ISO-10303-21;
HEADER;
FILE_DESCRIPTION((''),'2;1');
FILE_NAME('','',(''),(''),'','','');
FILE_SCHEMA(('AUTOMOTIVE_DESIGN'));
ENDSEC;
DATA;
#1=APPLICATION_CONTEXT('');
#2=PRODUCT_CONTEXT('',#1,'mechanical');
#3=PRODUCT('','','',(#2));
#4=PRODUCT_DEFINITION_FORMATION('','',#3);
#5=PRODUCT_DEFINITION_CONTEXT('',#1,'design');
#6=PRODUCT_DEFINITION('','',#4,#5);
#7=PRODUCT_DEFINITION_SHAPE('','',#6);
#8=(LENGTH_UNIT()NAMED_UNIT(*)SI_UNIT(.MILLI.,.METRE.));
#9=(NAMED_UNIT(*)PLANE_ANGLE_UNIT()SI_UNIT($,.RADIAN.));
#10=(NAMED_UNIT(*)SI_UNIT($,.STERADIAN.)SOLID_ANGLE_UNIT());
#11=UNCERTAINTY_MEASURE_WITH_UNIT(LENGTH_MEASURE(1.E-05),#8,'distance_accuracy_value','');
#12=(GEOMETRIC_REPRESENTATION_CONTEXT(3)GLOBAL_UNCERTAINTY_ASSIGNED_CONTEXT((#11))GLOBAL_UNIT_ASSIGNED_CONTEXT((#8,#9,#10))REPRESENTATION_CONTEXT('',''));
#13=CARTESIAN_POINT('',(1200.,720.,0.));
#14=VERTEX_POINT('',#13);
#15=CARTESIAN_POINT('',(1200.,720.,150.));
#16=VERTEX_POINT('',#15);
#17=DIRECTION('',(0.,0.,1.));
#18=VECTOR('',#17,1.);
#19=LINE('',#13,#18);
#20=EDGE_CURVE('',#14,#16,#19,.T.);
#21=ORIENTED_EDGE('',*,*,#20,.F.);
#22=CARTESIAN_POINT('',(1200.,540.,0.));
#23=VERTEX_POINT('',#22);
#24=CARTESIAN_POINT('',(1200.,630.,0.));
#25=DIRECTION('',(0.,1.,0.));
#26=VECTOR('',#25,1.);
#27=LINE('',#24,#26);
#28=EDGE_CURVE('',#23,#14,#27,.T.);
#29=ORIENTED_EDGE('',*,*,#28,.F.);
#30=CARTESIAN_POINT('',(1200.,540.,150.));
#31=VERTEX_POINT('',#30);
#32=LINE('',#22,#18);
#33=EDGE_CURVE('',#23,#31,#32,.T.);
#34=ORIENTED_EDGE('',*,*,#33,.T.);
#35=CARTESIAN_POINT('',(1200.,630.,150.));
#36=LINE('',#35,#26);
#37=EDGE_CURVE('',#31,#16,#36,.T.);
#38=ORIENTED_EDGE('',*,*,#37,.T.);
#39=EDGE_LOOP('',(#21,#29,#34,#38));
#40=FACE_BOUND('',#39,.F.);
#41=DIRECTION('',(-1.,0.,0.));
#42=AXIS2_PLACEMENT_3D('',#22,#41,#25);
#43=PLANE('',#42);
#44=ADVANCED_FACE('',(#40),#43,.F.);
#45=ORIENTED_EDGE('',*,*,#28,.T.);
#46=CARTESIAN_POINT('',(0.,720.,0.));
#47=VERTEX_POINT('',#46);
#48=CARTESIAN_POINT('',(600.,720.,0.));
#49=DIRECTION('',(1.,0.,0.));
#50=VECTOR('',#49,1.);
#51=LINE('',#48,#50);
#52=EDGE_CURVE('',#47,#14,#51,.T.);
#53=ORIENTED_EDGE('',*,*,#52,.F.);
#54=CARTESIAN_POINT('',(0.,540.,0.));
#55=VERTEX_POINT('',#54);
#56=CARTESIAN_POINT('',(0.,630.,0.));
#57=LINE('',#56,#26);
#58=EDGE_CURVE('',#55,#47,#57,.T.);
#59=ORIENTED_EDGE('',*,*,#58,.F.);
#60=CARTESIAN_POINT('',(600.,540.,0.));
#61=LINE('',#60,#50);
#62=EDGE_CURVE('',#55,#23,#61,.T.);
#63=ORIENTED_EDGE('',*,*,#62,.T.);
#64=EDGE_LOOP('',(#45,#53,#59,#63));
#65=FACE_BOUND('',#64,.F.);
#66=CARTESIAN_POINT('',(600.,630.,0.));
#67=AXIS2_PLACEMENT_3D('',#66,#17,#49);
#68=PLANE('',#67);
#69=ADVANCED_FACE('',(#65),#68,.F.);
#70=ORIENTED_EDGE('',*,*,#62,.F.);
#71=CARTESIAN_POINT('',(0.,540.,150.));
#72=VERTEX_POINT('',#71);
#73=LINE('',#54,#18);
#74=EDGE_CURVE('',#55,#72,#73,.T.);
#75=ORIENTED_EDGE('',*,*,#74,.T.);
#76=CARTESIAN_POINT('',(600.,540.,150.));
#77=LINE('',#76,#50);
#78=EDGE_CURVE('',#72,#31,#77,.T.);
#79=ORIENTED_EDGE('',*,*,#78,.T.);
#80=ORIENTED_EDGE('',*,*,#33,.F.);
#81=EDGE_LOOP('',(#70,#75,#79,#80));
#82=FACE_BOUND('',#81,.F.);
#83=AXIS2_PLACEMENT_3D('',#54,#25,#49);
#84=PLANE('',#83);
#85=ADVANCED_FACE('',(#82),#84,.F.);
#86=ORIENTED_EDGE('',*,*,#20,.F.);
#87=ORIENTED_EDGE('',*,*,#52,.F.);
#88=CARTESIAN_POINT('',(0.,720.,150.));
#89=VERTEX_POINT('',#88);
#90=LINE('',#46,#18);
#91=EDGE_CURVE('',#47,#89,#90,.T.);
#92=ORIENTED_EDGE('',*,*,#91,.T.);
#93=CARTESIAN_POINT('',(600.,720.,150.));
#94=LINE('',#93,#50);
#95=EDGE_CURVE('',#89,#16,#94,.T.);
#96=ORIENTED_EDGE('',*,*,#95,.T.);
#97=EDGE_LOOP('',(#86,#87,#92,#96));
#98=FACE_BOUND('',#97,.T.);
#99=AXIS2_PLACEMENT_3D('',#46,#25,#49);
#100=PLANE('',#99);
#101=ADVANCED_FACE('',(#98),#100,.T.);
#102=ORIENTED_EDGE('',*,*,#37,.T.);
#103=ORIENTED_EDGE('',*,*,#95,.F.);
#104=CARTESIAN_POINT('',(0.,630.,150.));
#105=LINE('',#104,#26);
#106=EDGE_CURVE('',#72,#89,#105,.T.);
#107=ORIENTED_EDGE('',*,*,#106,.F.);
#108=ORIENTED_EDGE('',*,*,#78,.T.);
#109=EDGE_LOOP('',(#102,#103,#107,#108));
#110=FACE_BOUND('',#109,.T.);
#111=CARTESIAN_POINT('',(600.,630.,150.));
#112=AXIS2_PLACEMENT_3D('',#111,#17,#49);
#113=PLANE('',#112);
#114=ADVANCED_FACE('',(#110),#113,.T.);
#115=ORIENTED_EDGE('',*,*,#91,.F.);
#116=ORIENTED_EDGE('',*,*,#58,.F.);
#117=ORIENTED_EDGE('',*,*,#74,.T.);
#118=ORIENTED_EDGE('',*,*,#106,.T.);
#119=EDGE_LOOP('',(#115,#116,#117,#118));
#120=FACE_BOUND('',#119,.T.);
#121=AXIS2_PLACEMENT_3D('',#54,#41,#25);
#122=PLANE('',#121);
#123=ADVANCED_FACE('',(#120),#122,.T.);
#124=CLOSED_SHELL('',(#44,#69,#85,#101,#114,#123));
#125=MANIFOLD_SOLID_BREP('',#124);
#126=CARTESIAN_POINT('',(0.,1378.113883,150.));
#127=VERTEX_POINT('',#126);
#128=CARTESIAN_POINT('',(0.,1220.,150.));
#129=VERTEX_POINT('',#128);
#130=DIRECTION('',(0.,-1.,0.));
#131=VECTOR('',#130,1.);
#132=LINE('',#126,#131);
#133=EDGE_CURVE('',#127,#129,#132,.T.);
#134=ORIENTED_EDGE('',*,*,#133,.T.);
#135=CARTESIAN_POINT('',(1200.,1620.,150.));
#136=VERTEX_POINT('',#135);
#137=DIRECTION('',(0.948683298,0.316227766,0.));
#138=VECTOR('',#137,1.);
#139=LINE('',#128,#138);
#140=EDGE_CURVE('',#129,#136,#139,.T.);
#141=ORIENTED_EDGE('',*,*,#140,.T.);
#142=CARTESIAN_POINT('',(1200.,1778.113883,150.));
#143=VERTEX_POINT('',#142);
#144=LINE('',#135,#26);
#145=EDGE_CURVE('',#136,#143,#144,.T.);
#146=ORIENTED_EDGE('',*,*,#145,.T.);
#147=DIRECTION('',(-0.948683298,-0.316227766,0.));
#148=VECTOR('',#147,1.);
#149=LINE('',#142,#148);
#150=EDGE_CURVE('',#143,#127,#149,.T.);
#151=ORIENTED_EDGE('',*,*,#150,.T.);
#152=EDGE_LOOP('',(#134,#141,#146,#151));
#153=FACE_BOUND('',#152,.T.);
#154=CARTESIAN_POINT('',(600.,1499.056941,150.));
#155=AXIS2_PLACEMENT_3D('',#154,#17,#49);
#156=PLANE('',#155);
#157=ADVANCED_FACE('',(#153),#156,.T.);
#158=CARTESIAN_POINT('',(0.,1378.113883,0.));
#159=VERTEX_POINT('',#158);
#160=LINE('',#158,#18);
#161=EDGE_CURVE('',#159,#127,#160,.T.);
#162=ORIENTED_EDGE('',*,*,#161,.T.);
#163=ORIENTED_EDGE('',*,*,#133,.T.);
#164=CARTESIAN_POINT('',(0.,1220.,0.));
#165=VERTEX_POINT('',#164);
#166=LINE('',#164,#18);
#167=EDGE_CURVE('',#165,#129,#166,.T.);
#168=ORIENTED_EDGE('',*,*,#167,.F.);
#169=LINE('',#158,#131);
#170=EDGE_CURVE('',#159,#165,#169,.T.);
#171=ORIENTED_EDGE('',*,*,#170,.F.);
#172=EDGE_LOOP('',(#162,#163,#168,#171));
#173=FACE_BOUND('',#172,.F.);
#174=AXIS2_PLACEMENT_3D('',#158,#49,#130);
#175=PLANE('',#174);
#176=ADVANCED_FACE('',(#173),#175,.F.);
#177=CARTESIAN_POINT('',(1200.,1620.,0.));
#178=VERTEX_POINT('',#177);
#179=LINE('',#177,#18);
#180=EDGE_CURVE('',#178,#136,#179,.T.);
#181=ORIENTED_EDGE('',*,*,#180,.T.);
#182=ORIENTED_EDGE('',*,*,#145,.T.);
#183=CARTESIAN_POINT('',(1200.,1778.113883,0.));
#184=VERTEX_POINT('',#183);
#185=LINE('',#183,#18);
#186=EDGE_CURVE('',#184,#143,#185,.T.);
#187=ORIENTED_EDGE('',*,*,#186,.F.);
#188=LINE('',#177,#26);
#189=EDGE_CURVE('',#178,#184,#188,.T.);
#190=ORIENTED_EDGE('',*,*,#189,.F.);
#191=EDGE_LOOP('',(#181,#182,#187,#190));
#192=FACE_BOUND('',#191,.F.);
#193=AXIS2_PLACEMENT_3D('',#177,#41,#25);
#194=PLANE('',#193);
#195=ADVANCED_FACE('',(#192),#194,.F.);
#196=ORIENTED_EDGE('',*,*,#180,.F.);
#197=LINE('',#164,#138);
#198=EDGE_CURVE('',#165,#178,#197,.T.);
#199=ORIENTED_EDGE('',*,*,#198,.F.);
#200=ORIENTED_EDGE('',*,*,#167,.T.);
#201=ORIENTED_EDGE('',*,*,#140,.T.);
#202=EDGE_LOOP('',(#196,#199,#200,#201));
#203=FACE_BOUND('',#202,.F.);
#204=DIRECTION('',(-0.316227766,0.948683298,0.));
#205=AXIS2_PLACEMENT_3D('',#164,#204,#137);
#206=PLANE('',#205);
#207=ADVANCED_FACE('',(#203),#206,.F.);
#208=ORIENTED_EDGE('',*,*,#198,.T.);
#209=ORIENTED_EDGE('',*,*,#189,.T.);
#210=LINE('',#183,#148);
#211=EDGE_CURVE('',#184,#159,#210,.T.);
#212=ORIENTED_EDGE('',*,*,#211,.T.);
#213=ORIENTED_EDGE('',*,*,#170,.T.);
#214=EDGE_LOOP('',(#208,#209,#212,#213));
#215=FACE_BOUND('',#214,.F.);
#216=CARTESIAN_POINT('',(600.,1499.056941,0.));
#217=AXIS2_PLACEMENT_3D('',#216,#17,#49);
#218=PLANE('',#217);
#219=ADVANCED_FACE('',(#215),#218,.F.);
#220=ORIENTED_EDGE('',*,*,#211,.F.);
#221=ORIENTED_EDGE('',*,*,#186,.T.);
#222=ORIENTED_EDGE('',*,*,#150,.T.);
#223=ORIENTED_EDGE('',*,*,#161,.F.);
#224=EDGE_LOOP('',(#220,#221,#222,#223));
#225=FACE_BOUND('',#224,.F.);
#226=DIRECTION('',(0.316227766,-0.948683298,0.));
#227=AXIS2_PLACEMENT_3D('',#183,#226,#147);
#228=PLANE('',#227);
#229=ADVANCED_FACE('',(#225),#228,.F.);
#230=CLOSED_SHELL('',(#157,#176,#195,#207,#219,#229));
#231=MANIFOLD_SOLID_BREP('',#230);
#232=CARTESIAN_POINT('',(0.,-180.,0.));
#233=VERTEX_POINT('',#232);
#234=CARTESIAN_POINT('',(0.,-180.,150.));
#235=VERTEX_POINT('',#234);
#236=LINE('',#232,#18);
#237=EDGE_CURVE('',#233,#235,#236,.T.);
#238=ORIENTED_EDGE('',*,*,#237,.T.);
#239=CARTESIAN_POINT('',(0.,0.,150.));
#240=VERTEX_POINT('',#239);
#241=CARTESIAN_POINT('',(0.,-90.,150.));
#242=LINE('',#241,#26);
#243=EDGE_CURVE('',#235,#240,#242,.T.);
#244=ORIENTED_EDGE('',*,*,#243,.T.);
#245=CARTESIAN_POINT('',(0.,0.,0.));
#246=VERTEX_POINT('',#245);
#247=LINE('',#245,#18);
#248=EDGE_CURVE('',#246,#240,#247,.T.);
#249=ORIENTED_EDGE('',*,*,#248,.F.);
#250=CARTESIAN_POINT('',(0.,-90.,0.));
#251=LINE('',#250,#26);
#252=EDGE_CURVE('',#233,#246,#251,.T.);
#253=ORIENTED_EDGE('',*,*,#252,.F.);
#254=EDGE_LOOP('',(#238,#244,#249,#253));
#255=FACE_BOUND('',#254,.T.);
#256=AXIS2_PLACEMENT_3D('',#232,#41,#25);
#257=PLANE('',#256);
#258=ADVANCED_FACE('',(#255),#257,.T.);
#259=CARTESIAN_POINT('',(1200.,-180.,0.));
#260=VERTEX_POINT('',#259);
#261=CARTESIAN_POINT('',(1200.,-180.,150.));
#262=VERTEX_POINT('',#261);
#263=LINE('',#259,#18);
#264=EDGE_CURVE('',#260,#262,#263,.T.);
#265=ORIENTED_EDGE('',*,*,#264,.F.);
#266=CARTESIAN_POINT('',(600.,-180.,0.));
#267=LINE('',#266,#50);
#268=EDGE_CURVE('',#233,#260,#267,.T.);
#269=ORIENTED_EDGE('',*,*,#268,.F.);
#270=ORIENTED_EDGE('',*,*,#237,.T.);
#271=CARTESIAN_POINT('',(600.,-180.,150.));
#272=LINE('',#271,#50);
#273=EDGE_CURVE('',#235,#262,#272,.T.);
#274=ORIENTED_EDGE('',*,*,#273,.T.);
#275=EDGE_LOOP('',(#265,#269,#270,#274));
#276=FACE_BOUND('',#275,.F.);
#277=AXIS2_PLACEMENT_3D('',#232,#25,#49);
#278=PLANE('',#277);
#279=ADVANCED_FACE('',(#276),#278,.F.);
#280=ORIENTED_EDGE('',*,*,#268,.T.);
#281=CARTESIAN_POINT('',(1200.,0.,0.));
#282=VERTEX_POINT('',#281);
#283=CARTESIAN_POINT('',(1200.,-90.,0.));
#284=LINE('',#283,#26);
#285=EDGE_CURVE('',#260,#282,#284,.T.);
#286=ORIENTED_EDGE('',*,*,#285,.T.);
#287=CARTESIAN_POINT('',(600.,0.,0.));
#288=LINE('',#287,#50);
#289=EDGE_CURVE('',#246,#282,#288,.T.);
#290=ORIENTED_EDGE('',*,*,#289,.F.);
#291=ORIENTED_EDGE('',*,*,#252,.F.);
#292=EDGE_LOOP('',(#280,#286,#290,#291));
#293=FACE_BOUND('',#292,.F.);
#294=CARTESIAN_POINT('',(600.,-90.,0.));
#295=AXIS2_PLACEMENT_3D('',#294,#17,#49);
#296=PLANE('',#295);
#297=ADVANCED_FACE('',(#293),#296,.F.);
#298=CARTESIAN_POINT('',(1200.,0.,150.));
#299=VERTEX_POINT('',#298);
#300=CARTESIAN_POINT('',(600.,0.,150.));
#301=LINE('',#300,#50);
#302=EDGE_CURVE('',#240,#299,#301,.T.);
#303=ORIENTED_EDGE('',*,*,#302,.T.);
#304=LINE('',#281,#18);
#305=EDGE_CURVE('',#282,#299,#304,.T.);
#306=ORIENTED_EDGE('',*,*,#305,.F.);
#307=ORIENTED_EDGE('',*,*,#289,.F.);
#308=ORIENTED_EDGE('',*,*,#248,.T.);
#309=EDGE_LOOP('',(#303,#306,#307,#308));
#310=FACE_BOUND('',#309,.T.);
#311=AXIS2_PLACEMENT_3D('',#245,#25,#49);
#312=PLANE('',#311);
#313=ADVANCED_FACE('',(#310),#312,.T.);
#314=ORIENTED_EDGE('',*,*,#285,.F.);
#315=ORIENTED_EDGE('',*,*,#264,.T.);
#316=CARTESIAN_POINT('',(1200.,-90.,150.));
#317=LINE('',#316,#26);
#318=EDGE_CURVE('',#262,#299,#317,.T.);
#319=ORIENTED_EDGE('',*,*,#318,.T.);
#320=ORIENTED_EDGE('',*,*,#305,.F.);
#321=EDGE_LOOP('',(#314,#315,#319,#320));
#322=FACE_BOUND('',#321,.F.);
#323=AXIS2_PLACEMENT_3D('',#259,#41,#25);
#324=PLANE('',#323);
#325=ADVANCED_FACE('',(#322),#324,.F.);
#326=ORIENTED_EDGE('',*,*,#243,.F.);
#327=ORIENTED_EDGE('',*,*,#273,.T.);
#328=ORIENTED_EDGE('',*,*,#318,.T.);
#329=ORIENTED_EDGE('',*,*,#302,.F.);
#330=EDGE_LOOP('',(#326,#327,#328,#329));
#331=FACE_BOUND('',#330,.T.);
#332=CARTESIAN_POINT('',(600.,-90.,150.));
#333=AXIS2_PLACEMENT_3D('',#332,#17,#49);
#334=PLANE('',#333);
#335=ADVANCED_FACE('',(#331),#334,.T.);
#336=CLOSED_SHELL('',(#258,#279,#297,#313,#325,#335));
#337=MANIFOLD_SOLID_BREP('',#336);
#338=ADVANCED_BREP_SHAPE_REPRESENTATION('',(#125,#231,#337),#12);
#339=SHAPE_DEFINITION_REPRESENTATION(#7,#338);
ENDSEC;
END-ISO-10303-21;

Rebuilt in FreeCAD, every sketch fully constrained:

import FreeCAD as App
import Part
import Sketcher

V = App.Vector

doc = App.newDocument("Part")
body = doc.addObject("PartDesign::Body", "Body")
body.AllowCompound = True

# Sketch on XY plane
sketch1 = doc.addObject("Sketcher::SketchObject", "Sketch")
body.addObject(sketch1)
sketch1.AttachmentSupport = (doc.XY_Plane, [""])
sketch1.MapMode = "FlatFace"
sketch1.addGeometry(Part.LineSegment(V(1200, 1778, 0), V(0, 1378, 0)), False)
sketch1.addGeometry(Part.LineSegment(V(0, 1378, 0), V(0, 1220, 0)), False)
sketch1.addGeometry(Part.LineSegment(V(0, 1220, 0), V(1200, 1620, 0)), False)
sketch1.addGeometry(Part.LineSegment(V(1200, 1620, 0), V(1200, 1778, 0)), False)
sketch1.addGeometry(Part.LineSegment(V(0, 720, 0), V(0, 540, 0)), False)
sketch1.addGeometry(Part.LineSegment(V(0, 540, 0), V(1200, 540, 0)), False)
sketch1.addGeometry(Part.LineSegment(V(1200, 540, 0), V(1200, 720, 0)), False)
sketch1.addGeometry(Part.LineSegment(V(1200, 720, 0), V(0, 720, 0)), False)
sketch1.addGeometry(Part.LineSegment(V(0, 0, 0), V(0, -180, 0)), False)
sketch1.addGeometry(Part.LineSegment(V(0, -180, 0), V(1200, -180, 0)), False)
sketch1.addGeometry(Part.LineSegment(V(1200, -180, 0), V(1200, 0, 0)), False)
sketch1.addGeometry(Part.LineSegment(V(1200, 0, 0), V(0, 0, 0)), False)
sketch1.addConstraint(Sketcher.Constraint("Coincident", 0, 2, 1, 1))
sketch1.addConstraint(Sketcher.Constraint("Coincident", 1, 2, 2, 1))
sketch1.addConstraint(Sketcher.Constraint("Coincident", 2, 2, 3, 1))
sketch1.addConstraint(Sketcher.Constraint("Coincident", 3, 2, 0, 1))
sketch1.addConstraint(Sketcher.Constraint("Coincident", 4, 2, 5, 1))
sketch1.addConstraint(Sketcher.Constraint("Coincident", 5, 2, 6, 1))
sketch1.addConstraint(Sketcher.Constraint("Coincident", 6, 2, 7, 1))
sketch1.addConstraint(Sketcher.Constraint("Coincident", 7, 2, 4, 1))
sketch1.addConstraint(Sketcher.Constraint("Coincident", 8, 2, 9, 1))
sketch1.addConstraint(Sketcher.Constraint("Coincident", 9, 2, 10, 1))
sketch1.addConstraint(Sketcher.Constraint("Coincident", 10, 2, 11, 1))
sketch1.addConstraint(Sketcher.Constraint("Coincident", 11, 2, 8, 1))
sketch1.addConstraint(Sketcher.Constraint("Vertical", 1))
sketch1.addConstraint(Sketcher.Constraint("Vertical", 3))
sketch1.addConstraint(Sketcher.Constraint("Vertical", 4))
sketch1.addConstraint(Sketcher.Constraint("Horizontal", 5))
sketch1.addConstraint(Sketcher.Constraint("Vertical", 6))
sketch1.addConstraint(Sketcher.Constraint("Horizontal", 7))
sketch1.addConstraint(Sketcher.Constraint("Vertical", 8))
sketch1.addConstraint(Sketcher.Constraint("Horizontal", 9))
sketch1.addConstraint(Sketcher.Constraint("Vertical", 10))
sketch1.addConstraint(Sketcher.Constraint("Horizontal", 11))
sketch1.addConstraint(Sketcher.Constraint("Coincident", 11, 2, -1, 1))
sketch1.addConstraint(Sketcher.Constraint("PointOnObject", 0, 2, -2))
sketch1.addConstraint(Sketcher.Constraint("PointOnObject", 4, 2, -2))
sketch1.addConstraint(Sketcher.Constraint("Parallel", 0, 2))
sketch1.addConstraint(Sketcher.Constraint("Vertical", 3, 2, 5, 2))
sketch1.addConstraint(Sketcher.Constraint("Vertical", 6, 2, 9, 2))
sketch1.addConstraint(Sketcher.Constraint("Equal", 6, 8))
sketch1.addConstraint(Sketcher.Constraint("DistanceX", 5, 1, 5, 2, 1200.0))
sketch1.addConstraint(Sketcher.Constraint("DistanceY", 4, 2, 4, 1, 180.0))
sketch1.addConstraint(Sketcher.Constraint("DistanceY", -1, 1, 1, 2, 1220.0))
sketch1.addConstraint(Sketcher.Constraint("DistanceY", -1, 1, 2, 2, 1620.0))
sketch1.addConstraint(Sketcher.Constraint("DistanceY", -1, 1, 4, 2, 540.0))
sketch1.addConstraint(Sketcher.Constraint("DistanceY", 1, 2, 1, 1, 158.113883))
pad1 = doc.addObject("PartDesign::Pad", "Pad")
body.addObject(pad1)
pad1.Profile = sketch1
pad1.Length = 150

doc.recompute()
